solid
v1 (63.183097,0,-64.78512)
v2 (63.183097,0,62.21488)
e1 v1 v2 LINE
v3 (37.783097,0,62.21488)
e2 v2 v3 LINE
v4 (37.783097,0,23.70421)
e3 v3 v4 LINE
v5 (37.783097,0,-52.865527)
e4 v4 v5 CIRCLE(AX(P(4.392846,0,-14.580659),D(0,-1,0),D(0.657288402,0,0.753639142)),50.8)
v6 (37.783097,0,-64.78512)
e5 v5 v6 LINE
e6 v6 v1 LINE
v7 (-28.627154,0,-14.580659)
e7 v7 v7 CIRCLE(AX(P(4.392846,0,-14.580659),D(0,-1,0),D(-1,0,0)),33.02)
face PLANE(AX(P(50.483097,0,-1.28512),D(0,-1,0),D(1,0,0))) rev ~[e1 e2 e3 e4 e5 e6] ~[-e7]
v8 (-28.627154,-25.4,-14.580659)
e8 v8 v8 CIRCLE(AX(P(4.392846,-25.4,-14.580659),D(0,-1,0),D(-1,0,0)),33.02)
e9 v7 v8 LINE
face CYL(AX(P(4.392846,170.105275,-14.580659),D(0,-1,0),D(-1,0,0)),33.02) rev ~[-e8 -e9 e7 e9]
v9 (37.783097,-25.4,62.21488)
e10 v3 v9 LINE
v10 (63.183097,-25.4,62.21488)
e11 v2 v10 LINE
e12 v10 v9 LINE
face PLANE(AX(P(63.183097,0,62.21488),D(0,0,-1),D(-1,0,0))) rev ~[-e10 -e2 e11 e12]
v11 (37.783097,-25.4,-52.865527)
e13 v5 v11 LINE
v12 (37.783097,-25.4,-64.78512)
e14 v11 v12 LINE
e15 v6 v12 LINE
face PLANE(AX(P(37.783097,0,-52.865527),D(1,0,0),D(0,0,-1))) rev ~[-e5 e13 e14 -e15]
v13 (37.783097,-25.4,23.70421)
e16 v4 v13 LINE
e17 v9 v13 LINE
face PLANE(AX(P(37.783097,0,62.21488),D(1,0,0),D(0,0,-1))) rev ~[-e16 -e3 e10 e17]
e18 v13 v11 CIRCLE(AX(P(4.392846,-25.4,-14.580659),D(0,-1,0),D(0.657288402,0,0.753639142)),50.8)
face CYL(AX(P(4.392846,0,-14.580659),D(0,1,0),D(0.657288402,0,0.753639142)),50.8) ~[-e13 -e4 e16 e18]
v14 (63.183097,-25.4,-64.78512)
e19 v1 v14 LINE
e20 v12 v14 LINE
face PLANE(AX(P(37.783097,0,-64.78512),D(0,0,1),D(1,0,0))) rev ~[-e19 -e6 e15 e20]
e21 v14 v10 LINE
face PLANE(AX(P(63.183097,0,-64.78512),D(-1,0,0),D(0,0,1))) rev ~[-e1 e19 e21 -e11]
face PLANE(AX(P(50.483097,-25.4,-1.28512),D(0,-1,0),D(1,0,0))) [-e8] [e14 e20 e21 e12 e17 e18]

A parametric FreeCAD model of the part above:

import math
import FreeCAD as App
import Part
import Sketcher
Q = App.Units.Quantity

doc = App.newDocument("Part")
body = doc.addObject("PartDesign::Body", "Body")

# Sketch on XZ plane
sketch1 = doc.addObject("Sketcher::SketchObject", "Sketch")
body.addObject(sketch1)
sketch1.AttachmentSupport = (doc.XZ_Plane, [""])
sketch1.MapMode = "FlatFace"
sketch1.addGeometry([
    Part.LineSegment(App.Vector(63, -65, 0), App.Vector(63, 62, 0)),  # 0
    Part.LineSegment(App.Vector(63, 62, 0), App.Vector(38, 62, 0)),  # 1
    Part.LineSegment(App.Vector(38, 62, 0), App.Vector(38, 24, 0)),  # 2
    Part.ArcOfCircle(Part.Circle(App.Vector(4, -15, 0), App.Vector(0, 0, 1), 51), math.radians(49), math.radians(311)),  # 3
    Part.LineSegment(App.Vector(38, -53, 0), App.Vector(38, -65, 0)),  # 4
    Part.LineSegment(App.Vector(38, -65, 0), App.Vector(63, -65, 0)),  # 5
], False)
sketch1.addConstraint([
    Sketcher.Constraint("Coincident", 0, 2, 1, 1),
    Sketcher.Constraint("Coincident", 1, 2, 2, 1),
    Sketcher.Constraint("Coincident", 2, 2, 3, 1),
    Sketcher.Constraint("Coincident", 3, 2, 4, 1),
    Sketcher.Constraint("Coincident", 4, 2, 5, 1),
    Sketcher.Constraint("Coincident", 5, 2, 0, 1),
    Sketcher.Constraint("Vertical", 0),
    Sketcher.Constraint("Horizontal", 1),
    Sketcher.Constraint("Vertical", 2),
    Sketcher.Constraint("Vertical", 4),
    Sketcher.Constraint("Horizontal", 5),
    Sketcher.Constraint("Vertical", 2, 2, 3, 2),
    Sketcher.Constraint("Radius", 3, Q("2 in")),
    Sketcher.Constraint("DistanceX", 1, 2, 1, 1, Q("1 in")),
    Sketcher.Constraint("DistanceY", 0, 1, 0, 2, Q("5 in")),
    Sketcher.Constraint("DistanceY", 2, 2, 2, 1, 38.51067),
    Sketcher.Constraint("DistanceY", 4, 2, 4, 1, 11.919593),
    Sketcher.Constraint("DistanceY", 3, 3, -1, 1, 14.580659),
    Sketcher.Constraint("DistanceX", -1, 1, 3, 3, 4.392846),
])
pad1 = doc.addObject("PartDesign::Pad", "Pad")
body.addObject(pad1)
pad1.Profile = sketch1
pad1.Length = Q("1 in")

# Sketch on XZ plane
sketch2 = doc.addObject("Sketcher::SketchObject", "Sketch001")
body.addObject(sketch2)
sketch2.AttachmentSupport = (doc.XZ_Plane, [""])
sketch2.MapMode = "FlatFace"
sketch2.addGeometry(Part.Circle(App.Vector(4, -15, 0), App.Vector(0, 0, 1), 33), False)
sketch2.addConstraint([
    Sketcher.Constraint("Diameter", 0, Q("2.6 in")),
    Sketcher.Constraint("DistanceY", 0, 3, -1, 1, 14.580659),
    Sketcher.Constraint("DistanceX", -1, 1, 0, 3, 4.392846),
])
doc.recompute()
hole = doc.addObject("PartDesign::Hole", "Hole")
body.addObject(hole)
hole.Profile = sketch2
hole.ThreadType = "None"
hole.Diameter = Q("2.6 in")
hole.DepthType = "ThroughAll"
hole.Reversed = True

doc.recompute()
